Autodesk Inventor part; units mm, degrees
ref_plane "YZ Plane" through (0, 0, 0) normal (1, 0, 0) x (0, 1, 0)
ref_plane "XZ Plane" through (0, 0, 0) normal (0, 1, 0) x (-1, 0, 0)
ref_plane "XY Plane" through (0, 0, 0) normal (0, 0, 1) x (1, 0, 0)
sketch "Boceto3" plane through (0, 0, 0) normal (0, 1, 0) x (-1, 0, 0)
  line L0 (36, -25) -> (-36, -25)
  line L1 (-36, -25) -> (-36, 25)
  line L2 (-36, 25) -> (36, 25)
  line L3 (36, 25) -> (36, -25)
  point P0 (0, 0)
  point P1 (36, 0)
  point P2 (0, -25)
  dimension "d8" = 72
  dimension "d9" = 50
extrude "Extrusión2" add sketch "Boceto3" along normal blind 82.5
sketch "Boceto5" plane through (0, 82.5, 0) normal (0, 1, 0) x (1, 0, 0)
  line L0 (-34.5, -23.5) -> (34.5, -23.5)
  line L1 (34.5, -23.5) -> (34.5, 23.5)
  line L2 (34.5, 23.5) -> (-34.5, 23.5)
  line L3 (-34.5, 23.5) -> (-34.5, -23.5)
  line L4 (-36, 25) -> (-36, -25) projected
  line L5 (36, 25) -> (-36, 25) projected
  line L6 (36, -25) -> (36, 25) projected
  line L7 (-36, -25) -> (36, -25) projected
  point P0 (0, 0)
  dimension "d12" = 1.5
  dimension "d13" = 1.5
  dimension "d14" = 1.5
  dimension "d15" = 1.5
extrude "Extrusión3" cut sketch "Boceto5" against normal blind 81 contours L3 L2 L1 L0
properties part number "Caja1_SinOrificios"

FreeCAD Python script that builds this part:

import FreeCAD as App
import Part
import Sketcher
from FreeCAD import Vector


def add_polygon(sketch, points):
    """Adds a closed chain of lines whose ends are joined by coincident constraints."""
    first, n = sketch.GeometryCount, len(points)
    for a, b in zip(points, points[1:] + points[:1]):
        sketch.addGeometry(Part.LineSegment(App.Vector(*a, 0), App.Vector(*b, 0)), False)
    for i in range(n):
        sketch.addConstraint(Sketcher.Constraint("Coincident", first + i, 2, first + (i + 1) % n, 1))

doc = App.newDocument("Part")
params = doc.addObject("Spreadsheet::Sheet", "Params")
for row, (alias, value) in enumerate([
    ("sketch1_width", "72 mm"),
    ("sketch1_height", "50 mm"),
    ("pad1_length", "82.5 mm"),
    ("sketch2_width", "69 mm"),
    ("sketch2_height", "47 mm"),
    ("pocket1_length", "81 mm"),
], start=1):
    params.set(f"A{row}", alias)
    params.set(f"B{row}", "=" + value)
    params.setAlias(f"B{row}", alias)

body = doc.addObject("PartDesign::Body", "Body")

sketch1 = body.newObject("Sketcher::SketchObject", "Sketch")
sketch1.AttachmentSupport = (doc.getObject("XZ_Plane"), [""])
sketch1.MapMode = "FlatFace"
add_polygon(sketch1, [(36, -25), (-36, -25), (-36, 25), (36, 25)])
sketch1.addConstraint([
    Sketcher.Constraint("Horizontal", 0),
    Sketcher.Constraint("Vertical", 1),
    Sketcher.Constraint("Horizontal", 2),
    Sketcher.Constraint("Vertical", 3),
    Sketcher.Constraint("Symmetric", 0, 2, 2, 2, -1, 1),
    Sketcher.Constraint("DistanceX", 0, 2, 0, 1, 72.0),
    Sketcher.Constraint("DistanceY", 1, 1, 1, 2, 50.0),
])
sketch1.setExpression("Constraints[9]", "Params.sketch1_width")
sketch1.setExpression("Constraints[10]", "Params.sketch1_height")
pad1 = body.newObject("PartDesign::Pad", "Pad")
pad1.Profile = sketch1
pad1.setExpression("Length", "Params.pad1_length")
pad1.Reversed = True

sketch2 = body.newObject("Sketcher::SketchObject", "Sketch001")
sketch2.AttachmentSupport = (doc.getObject("XZ_Plane"), [""])
sketch2.MapMode = "FlatFace"
sketch2.AttachmentOffset = App.Placement(Vector(0, 0, -82.5), App.Rotation())
add_polygon(sketch2, [(-34, -24), (-34, 24), (34, 24), (34, -24)])
sketch2.addConstraint([
    Sketcher.Constraint("Vertical", 0),
    Sketcher.Constraint("Horizontal", 1),
    Sketcher.Constraint("Vertical", 2),
    Sketcher.Constraint("Horizontal", 3),
    Sketcher.Constraint("Symmetric", 0, 2, 2, 2, -1, 1),
    Sketcher.Constraint("DistanceX", 1, 1, 1, 2, 69.0),
    Sketcher.Constraint("DistanceY", 0, 1, 0, 2, 47.0),
])
sketch2.setExpression("Constraints[9]", "Params.sketch2_width")
sketch2.setExpression("Constraints[10]", "Params.sketch2_height")
pocket1 = body.newObject("PartDesign::Pocket", "Pocket")
pocket1.Profile = sketch2
pocket1.setExpression("Length", "Params.pocket1_length")
pocket1.Reversed = True

doc.recompute()
